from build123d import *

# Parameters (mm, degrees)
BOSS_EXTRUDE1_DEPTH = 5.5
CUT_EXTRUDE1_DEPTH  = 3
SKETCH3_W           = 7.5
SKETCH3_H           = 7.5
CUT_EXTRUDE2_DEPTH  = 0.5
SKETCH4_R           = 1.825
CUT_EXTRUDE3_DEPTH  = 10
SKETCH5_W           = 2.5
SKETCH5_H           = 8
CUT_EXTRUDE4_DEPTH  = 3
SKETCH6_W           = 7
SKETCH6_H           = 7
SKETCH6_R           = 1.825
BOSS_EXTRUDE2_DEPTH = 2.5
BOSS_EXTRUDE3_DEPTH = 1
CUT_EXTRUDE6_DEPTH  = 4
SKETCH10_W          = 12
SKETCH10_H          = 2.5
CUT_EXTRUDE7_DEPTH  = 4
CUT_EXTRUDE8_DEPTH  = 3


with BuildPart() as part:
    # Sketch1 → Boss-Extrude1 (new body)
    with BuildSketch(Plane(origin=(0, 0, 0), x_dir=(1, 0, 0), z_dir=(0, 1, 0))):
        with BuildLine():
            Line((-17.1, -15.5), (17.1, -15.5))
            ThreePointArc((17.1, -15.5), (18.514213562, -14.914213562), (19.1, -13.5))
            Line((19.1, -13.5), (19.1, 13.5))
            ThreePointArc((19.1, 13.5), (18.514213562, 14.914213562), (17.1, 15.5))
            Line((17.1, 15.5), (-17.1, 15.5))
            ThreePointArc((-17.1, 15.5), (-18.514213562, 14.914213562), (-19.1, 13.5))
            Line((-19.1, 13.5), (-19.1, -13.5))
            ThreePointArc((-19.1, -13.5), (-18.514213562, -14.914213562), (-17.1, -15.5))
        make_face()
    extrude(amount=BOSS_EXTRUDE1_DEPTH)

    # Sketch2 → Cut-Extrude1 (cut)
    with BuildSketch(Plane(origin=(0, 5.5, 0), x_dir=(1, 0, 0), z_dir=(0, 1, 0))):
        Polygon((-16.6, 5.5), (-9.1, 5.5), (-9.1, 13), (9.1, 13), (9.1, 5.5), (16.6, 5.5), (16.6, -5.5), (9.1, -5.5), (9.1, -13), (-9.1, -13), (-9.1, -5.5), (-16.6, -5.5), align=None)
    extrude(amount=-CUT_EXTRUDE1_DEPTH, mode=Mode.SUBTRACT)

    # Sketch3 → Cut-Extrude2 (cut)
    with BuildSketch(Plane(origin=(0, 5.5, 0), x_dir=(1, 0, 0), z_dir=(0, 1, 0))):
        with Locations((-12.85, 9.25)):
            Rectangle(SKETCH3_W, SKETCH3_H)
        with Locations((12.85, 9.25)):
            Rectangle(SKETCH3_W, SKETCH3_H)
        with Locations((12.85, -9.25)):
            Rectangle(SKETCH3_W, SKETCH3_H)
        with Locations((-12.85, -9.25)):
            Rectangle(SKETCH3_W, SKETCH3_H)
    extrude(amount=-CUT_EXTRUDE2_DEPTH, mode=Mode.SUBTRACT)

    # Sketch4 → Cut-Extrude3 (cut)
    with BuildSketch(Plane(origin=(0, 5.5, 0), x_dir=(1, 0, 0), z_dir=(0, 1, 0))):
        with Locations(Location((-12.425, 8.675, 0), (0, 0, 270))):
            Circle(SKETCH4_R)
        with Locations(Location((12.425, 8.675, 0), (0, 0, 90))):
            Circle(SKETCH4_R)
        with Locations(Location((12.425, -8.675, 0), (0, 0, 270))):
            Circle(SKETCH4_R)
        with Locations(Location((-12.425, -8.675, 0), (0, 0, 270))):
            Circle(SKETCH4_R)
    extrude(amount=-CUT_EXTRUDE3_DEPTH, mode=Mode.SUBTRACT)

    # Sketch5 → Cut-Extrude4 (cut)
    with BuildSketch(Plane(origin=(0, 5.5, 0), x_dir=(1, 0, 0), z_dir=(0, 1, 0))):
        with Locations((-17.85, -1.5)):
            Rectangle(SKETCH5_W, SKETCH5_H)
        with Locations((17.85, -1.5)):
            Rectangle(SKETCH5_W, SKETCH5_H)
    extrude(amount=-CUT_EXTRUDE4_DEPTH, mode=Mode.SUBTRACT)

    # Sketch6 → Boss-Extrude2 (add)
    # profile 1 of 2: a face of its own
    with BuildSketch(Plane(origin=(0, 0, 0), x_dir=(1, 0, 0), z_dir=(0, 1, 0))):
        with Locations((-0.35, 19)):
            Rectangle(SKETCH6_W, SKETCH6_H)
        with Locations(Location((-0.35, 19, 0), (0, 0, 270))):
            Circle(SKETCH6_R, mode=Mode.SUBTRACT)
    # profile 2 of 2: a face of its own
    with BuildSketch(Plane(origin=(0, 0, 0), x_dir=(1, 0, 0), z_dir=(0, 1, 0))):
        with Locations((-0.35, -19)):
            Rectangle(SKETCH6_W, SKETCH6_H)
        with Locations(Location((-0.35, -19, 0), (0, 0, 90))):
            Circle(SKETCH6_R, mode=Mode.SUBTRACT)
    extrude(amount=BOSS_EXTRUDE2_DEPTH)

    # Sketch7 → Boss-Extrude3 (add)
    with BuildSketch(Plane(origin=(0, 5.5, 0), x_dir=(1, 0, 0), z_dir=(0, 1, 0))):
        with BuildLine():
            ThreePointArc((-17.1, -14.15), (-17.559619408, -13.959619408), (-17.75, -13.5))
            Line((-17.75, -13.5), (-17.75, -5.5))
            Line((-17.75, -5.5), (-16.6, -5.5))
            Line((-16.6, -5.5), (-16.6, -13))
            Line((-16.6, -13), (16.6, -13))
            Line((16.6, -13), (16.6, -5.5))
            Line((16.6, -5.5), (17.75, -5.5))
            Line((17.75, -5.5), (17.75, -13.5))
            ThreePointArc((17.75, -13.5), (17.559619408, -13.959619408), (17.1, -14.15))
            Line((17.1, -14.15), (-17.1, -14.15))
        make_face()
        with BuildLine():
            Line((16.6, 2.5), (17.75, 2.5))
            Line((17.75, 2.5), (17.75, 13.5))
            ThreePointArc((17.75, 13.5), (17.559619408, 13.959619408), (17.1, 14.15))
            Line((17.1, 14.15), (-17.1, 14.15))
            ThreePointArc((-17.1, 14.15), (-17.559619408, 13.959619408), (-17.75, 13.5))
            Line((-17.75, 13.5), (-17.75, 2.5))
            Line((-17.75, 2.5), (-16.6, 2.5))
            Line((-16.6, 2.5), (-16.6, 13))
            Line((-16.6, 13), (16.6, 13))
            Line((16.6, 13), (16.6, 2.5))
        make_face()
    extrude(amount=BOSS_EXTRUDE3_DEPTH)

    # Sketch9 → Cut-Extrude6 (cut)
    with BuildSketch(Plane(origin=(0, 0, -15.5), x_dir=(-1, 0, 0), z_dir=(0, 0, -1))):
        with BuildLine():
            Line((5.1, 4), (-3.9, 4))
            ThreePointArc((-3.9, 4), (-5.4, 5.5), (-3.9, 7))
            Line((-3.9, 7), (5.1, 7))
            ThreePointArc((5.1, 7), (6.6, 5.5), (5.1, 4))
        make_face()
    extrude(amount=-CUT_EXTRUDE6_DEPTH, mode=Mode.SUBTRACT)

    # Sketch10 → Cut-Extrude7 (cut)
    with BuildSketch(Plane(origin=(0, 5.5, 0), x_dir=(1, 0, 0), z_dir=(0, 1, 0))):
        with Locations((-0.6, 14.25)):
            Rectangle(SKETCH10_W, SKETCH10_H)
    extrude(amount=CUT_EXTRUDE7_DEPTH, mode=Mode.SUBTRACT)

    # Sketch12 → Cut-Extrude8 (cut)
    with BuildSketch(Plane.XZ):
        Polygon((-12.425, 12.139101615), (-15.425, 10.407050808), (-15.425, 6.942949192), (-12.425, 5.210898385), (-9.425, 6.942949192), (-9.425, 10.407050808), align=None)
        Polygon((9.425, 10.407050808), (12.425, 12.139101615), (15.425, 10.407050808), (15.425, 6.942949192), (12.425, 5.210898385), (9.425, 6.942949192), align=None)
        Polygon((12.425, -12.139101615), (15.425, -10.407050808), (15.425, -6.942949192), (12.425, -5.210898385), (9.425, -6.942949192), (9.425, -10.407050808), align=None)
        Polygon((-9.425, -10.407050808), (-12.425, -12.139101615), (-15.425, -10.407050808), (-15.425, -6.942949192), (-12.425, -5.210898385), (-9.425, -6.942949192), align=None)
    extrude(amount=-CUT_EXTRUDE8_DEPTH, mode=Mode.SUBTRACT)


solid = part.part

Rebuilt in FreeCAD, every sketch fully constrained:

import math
import FreeCAD as App
import Part
import Sketcher

V = App.Vector
Q = App.Units.Quantity


def add_polygon(sketch, points):
    """Adds a closed chain of lines whose ends are joined by coincident constraints."""
    first, n = sketch.GeometryCount, len(points)
    for a, b in zip(points, points[1:] + points[:1]):
        sketch.addGeometry(Part.LineSegment(App.Vector(*a, 0), App.Vector(*b, 0)), False)
    for i in range(n):
        sketch.addConstraint(Sketcher.Constraint("Coincident", first + i, 2, first + (i + 1) % n, 1))

doc = App.newDocument("Part")
body = doc.addObject("PartDesign::Body", "Body")

sketch1 = body.newObject("Sketcher::SketchObject", "Sketch")
sketch1.AttachmentSupport = (doc.getObject("XZ_Plane"), [""])
sketch1.MapMode = "FlatFace"
sketch1.addGeometry([
    Part.LineSegment(V(-17.1, 15.5, 0), V(17.1, 15.5, 0)),
    Part.ArcOfCircle(Part.Circle(V(17.1, 13.5, 0), V(0, 0, 1), 2), math.radians(0), math.radians(90)),
    Part.LineSegment(V(19.1, 13.5, 0), V(19.1, -13.5, 0)),
    Part.ArcOfCircle(Part.Circle(V(17.1, -13.5, 0), V(0, 0, 1), 2), math.radians(-90), math.radians(0)),
    Part.LineSegment(V(17.1, -15.5, 0), V(-17.1, -15.5, 0)),
    Part.ArcOfCircle(Part.Circle(V(-17.1, -13.5, 0), V(0, 0, 1), 2), math.radians(-180), math.radians(-90)),
    Part.LineSegment(V(-19.1, -13.5, 0), V(-19.1, 13.5, 0)),
    Part.ArcOfCircle(Part.Circle(V(-17.1, 13.5, 0), V(0, 0, 1), 2), math.radians(90), math.radians(180)),
], False)
sketch1.addConstraint([
    Sketcher.Constraint("Tangent", 0, 2, 1, 2),
    Sketcher.Constraint("Tangent", 1, 1, 2, 1),
    Sketcher.Constraint("Tangent", 2, 2, 3, 2),
    Sketcher.Constraint("Tangent", 3, 1, 4, 1),
    Sketcher.Constraint("Tangent", 4, 2, 5, 2),
    Sketcher.Constraint("Tangent", 5, 1, 6, 1),
    Sketcher.Constraint("Tangent", 6, 2, 7, 2),
    Sketcher.Constraint("Tangent", 7, 1, 0, 1),
    Sketcher.Constraint("Horizontal", 0),
    Sketcher.Constraint("Vertical", 2),
    Sketcher.Constraint("Horizontal", 4),
    Sketcher.Constraint("Vertical", 6),
    Sketcher.Constraint("Equal", 1, 3),
    Sketcher.Constraint("Equal", 3, 5),
    Sketcher.Constraint("Equal", 5, 7),
    Sketcher.Constraint("Symmetric", 1, 3, 5, 3, -1, 1),
    Sketcher.Constraint("Radius", 1, Q("2 mm")),
    Sketcher.Constraint("DistanceY", 2, 2, 2, 1, Q("27 mm")),
    Sketcher.Constraint("DistanceX", 0, 1, 0, 2, Q("34.2 mm")),
])
pad1 = body.newObject("PartDesign::Pad", "Pad")
pad1.Profile = sketch1
pad1.Length = 5.5
pad1.Reversed = True

sketch2 = body.newObject("Sketcher::SketchObject", "Sketch001")
sketch2.AttachmentSupport = (doc.getObject("XZ_Plane"), [""])
sketch2.MapMode = "FlatFace"
sketch2.AttachmentOffset = App.Placement(V(0, 0, -5.5), App.Rotation())
add_polygon(sketch2, [(-9.1, -5.5), (-16.6, -5.5), (-16.6, 5.5), (-9.1, 5.5), (-9.1, 13), (9.1, 13), (9.1, 5.5), (16.6, 5.5), (16.6, -5.5), (9.1, -5.5), (9.1, -13), (-9.1, -13)])
sketch2.addConstraint([
    Sketcher.Constraint("Horizontal", 0),
    Sketcher.Constraint("Vertical", 1),
    Sketcher.Constraint("Horizontal", 2),
    Sketcher.Constraint("Vertical", 3),
    Sketcher.Constraint("Horizontal", 4),
    Sketcher.Constraint("Vertical", 5),
    Sketcher.Constraint("Horizontal", 6),
    Sketcher.Constraint("Vertical", 7),
    Sketcher.Constraint("Horizontal", 8),
    Sketcher.Constraint("Vertical", 9),
    Sketcher.Constraint("Horizontal", 10),
    Sketcher.Constraint("Vertical", 11),
    Sketcher.Constraint("Symmetric", 0, 2, 6, 2, -1, 1),
    Sketcher.Constraint("Symmetric", 2, 2, 8, 2, -1, 1),
    Sketcher.Constraint("Symmetric", 4, 2, 10, 2, -1, 1),
    Sketcher.Constraint("Symmetric", 2, 2, 5, 2, -2),
    Sketcher.Constraint("Equal", 8, 3),
    Sketcher.Constraint("DistanceY", 1, 1, 1, 2, Q("11 mm")),
    Sketcher.Constraint("DistanceX", 0, 2, 0, 1, Q("7.5 mm")),
    Sketcher.Constraint("DistanceX", 4, 1, 4, 2, Q("18.2 mm")),
])
pocket1 = body.newObject("PartDesign::Pocket", "Pocket")
pocket1.Profile = sketch2
pocket1.Length = 3
pocket1.Reversed = True

sketch3 = body.newObject("Sketcher::SketchObject", "Sketch002")
sketch3.AttachmentSupport = (doc.getObject("XZ_Plane"), [""])
sketch3.MapMode = "FlatFace"
sketch3.AttachmentOffset = App.Placement(V(0, 0, -5.5), App.Rotation())
add_polygon(sketch3, [(-16.6, -13), (-16.6, -5.5), (-9.1, -5.5), (-9.1, -13)])
add_polygon(sketch3, [(9.1, -13), (9.1, -5.5), (16.6, -5.5), (16.6, -13)])
add_polygon(sketch3, [(9.1, 5.5), (9.1, 13), (16.6, 13), (16.6, 5.5)])
add_polygon(sketch3, [(-16.6, 5.5), (-16.6, 13), (-9.1, 13), (-9.1, 5.5)])
sketch3.addConstraint([
    Sketcher.Constraint("Vertical", 0),
    Sketcher.Constraint("Horizontal", 1),
    Sketcher.Constraint("Vertical", 2),
    Sketcher.Constraint("Horizontal", 3),
    Sketcher.Constraint("Vertical", 4),
    Sketcher.Constraint("Horizontal", 5),
    Sketcher.Constraint("Vertical", 6),
    Sketcher.Constraint("Horizontal", 7),
    Sketcher.Constraint("Vertical", 8),
    Sketcher.Constraint("Horizontal", 9),
    Sketcher.Constraint("Vertical", 10),
    Sketcher.Constraint("Horizontal", 11),
    Sketcher.Constraint("Vertical", 12),
    Sketcher.Constraint("Horizontal", 13),
    Sketcher.Constraint("Vertical", 14),
    Sketcher.Constraint("Horizontal", 15),
    Sketcher.Constraint("Symmetric", 2, 2, 8, 2, -1, 1),
    Sketcher.Constraint("Symmetric", 0, 2, 10, 2, -1, 1),
    Sketcher.Constraint("Symmetric", 6, 2, 12, 2, -1, 1),
    Sketcher.Constraint("Symmetric", 4, 2, 14, 2, -1, 1),
    Sketcher.Constraint("Symmetric", 1, 2, 4, 2, -2),
    Sketcher.Constraint("Symmetric", 3, 2, 6, 2, -2),
    Sketcher.Constraint("Equal", 15, 0),
    Sketcher.Constraint("DistanceX", 1, 1, 1, 2, Q("7.5 mm")),
    Sketcher.Constraint("DistanceY", 2, 2, -1, 1, Q("13 mm")),
    Sketcher.Constraint("DistanceX", 0, 2, -1, 1, Q("16.6 mm")),
])
pocket2 = body.newObject("PartDesign::Pocket", "Pocket001")
pocket2.Profile = sketch3
pocket2.Length = 0.5
pocket2.Reversed = True

sketch4 = body.newObject("Sketcher::SketchObject", "Sketch003")
sketch4.AttachmentSupport = (doc.getObject("XZ_Plane"), [""])
sketch4.MapMode = "FlatFace"
sketch4.AttachmentOffset = App.Placement(V(0, 0, -5.5), App.Rotation())
sketch4.addGeometry([
    Part.Circle(V(-12.425, -8.675, 0), V(0, 0, 1), 1.825),
    Part.Circle(V(12.425, -8.675, 0), V(0, 0, 1), 1.825),
    Part.Circle(V(12.425, 8.675, 0), V(0, 0, 1), 1.825),
    Part.Circle(V(-12.425, 8.675, 0), V(0, 0, 1), 1.825),
], False)
sketch4.addConstraint([
    Sketcher.Constraint("Equal", 0, 1),
    Sketcher.Constraint("Equal", 1, 2),
    Sketcher.Constraint("Equal", 2, 3),
    Sketcher.Constraint("Symmetric", 0, 3, 2, 3, -1, 1),
    Sketcher.Constraint("Symmetric", 1, 3, 3, 3, -1, 1),
    Sketcher.Constraint("Symmetric", 0, 3, 1, 3, -2),
    Sketcher.Constraint("Diameter", 0, Q("3.65 mm")),
    Sketcher.Constraint("DistanceX", 0, 3, 1, 3, Q("24.85 mm")),
    Sketcher.Constraint("DistanceY", 1, 3, 2, 3, Q("17.35 mm")),
])
pocket3 = body.newObject("PartDesign::Pocket", "Pocket002")
pocket3.Profile = sketch4
pocket3.Length = 10
pocket3.Reversed = True

sketch5 = body.newObject("Sketcher::SketchObject", "Sketch004")
sketch5.AttachmentSupport = (doc.getObject("XZ_Plane"), [""])
sketch5.MapMode = "FlatFace"
sketch5.AttachmentOffset = App.Placement(V(0, 0, -5.5), App.Rotation())
add_polygon(sketch5, [(-19.1, -2.5), (-19.1, 5.5), (-16.6, 5.5), (-16.6, -2.5)])
add_polygon(sketch5, [(16.6, -2.5), (16.6, 5.5), (19.1, 5.5), (19.1, -2.5)])
sketch5.addConstraint([
    Sketcher.Constraint("Vertical", 0),
    Sketcher.Constraint("Horizontal", 1),
    Sketcher.Constraint("Vertical", 2),
    Sketcher.Constraint("Horizontal", 3),
    Sketcher.Constraint("Vertical", 4),
    Sketcher.Constraint("Horizontal", 5),
    Sketcher.Constraint("Vertical", 6),
    Sketcher.Constraint("Horizontal", 7),
    Sketcher.Constraint("Symmetric", 1, 2, 4, 2, -2),
    Sketcher.Constraint("Symmetric", 3, 2, 6, 2, -2),
    Sketcher.Constraint("DistanceY", 0, 1, 0, 2, Q("8 mm")),
    Sketcher.Constraint("DistanceX", 1, 1, 1, 2, Q("2.5 mm")),
    Sketcher.Constraint("DistanceX", 0, 2, -1, 1, Q("19.1 mm")),
    Sketcher.Constraint("DistanceY", -1, 1, 0, 2, Q("5.5 mm")),
])
pocket4 = body.newObject("PartDesign::Pocket", "Pocket003")
pocket4.Profile = sketch5
pocket4.Length = 3
pocket4.Reversed = True

sketch6 = body.newObject("Sketcher::SketchObject", "Sketch005")
sketch6.AttachmentSupport = (doc.getObject("XZ_Plane"), [""])
sketch6.MapMode = "FlatFace"
add_polygon(sketch6, [(-3.85, -22.5), (-3.85, -15.5), (3.15, -15.5), (3.15, -22.5)])
sketch6.addGeometry(Part.Circle(V(-0.35, -19, 0), V(0, 0, 1), 1.825), False)
add_polygon(sketch6, [(-3.85, 15.5), (-3.85, 22.5), (3.15, 22.5), (3.15, 15.5)])
sketch6.addGeometry(Part.Circle(V(-0.35, 19, 0), V(0, 0, 1), 1.825), False)
sketch6.addConstraint([
    Sketcher.Constraint("Vertical", 0),
    Sketcher.Constraint("Horizontal", 1),
    Sketcher.Constraint("Vertical", 2),
    Sketcher.Constraint("Horizontal", 3),
    Sketcher.Constraint("Vertical", 5),
    Sketcher.Constraint("Horizontal", 6),
    Sketcher.Constraint("Vertical", 7),
    Sketcher.Constraint("Horizontal", 8),
    Sketcher.Constraint("Equal", 4, 9),
    Sketcher.Constraint("Symmetric", 4, 3, 9, 3, -1),
    Sketcher.Constraint("Symmetric", 3, 2, 5, 2, -1),
    Sketcher.Constraint("Symmetric", 1, 2, 7, 2, -1),
    Sketcher.Constraint("Equal", 8, 0),
    Sketcher.Constraint("Diameter", 4, Q("3.65 mm")),
    Sketcher.Constraint("DistanceX", 1, 1, 1, 2, Q("7 mm")),
    Sketcher.Constraint("DistanceY", 4, 3, -1, 1, Q("19 mm")),
    Sketcher.Constraint("DistanceY", 0, 2, 5, 2, Q("38 mm")),
    Sketcher.Constraint("DistanceX", 0, 2, 4, 3, Q("3.5 mm")),
    Sketcher.Constraint("DistanceX", 4, 3, -1, 1, Q("0.35 mm")),
])
pad2 = body.newObject("PartDesign::Pad", "Pad001")
pad2.Profile = sketch6
pad2.Length = 2.5
pad2.Reversed = True

sketch7 = body.newObject("Sketcher::SketchObject", "Sketch006")
sketch7.AttachmentSupport = (doc.getObject("XZ_Plane"), [""])
sketch7.MapMode = "FlatFace"
sketch7.AttachmentOffset = App.Placement(V(0, 0, -5.5), App.Rotation())
sketch7.addGeometry([
    Part.ArcOfCircle(Part.Circle(V(-17.1, 13.5, 0), V(0, 0, 1), 0.65), math.radians(90), math.radians(180)),
    Part.LineSegment(V(-17.1, 14.15, 0), V(17.1, 14.15, 0)),
    Part.ArcOfCircle(Part.Circle(V(17.1, 13.5, 0), V(0, 0, 1), 0.65), math.radians(0), math.radians(90)),
    Part.LineSegment(V(17.75, 13.5, 0), V(17.75, 5.5, 0)),
    Part.LineSegment(V(17.75, 5.5, 0), V(16.6, 5.5, 0)),
    Part.LineSegment(V(16.6, 5.5, 0), V(16.6, 13, 0)),
    Part.LineSegment(V(16.6, 13, 0), V(-16.6, 13, 0)),
    Part.LineSegment(V(-16.6, 13, 0), V(-16.6, 5.5, 0)),
    Part.LineSegment(V(-16.6, 5.5, 0), V(-17.75, 5.5, 0)),
    Part.LineSegment(V(-17.75, 5.5, 0), V(-17.75, 13.5, 0)),
    Part.LineSegment(V(16.6, -2.5, 0), V(17.75, -2.5, 0)),
    Part.LineSegment(V(17.75, -2.5, 0), V(17.75, -13.5, 0)),
    Part.ArcOfCircle(Part.Circle(V(17.1, -13.5, 0), V(0, 0, 1), 0.65), math.radians(-90), math.radians(0)),
    Part.LineSegment(V(17.1, -14.15, 0), V(-17.1, -14.15, 0)),
    Part.ArcOfCircle(Part.Circle(V(-17.1, -13.5, 0), V(0, 0, 1), 0.65), math.radians(180), math.radians(270)),
    Part.LineSegment(V(-17.75, -13.5, 0), V(-17.75, -2.5, 0)),
    Part.LineSegment(V(-17.75, -2.5, 0), V(-16.6, -2.5, 0)),
    Part.LineSegment(V(-16.6, -2.5, 0), V(-16.6, -13, 0)),
    Part.LineSegment(V(-16.6, -13, 0), V(16.6, -13, 0)),
    Part.LineSegment(V(16.6, -13, 0), V(16.6, -2.5, 0)),
], False)
sketch7.addConstraint([
    Sketcher.Constraint("Tangent", 0, 1, 1, 1),
    Sketcher.Constraint("Tangent", 1, 2, 2, 2),
    Sketcher.Constraint("Tangent", 2, 1, 3, 1),
    Sketcher.Constraint("Coincident", 3, 2, 4, 1),
    Sketcher.Constraint("Coincident", 4, 2, 5, 1),
    Sketcher.Constraint("Coincident", 5, 2, 6, 1),
    Sketcher.Constraint("Coincident", 6, 2, 7, 1),
    Sketcher.Constraint("Coincident", 7, 2, 8, 1),
    Sketcher.Constraint("Coincident", 8, 2, 9, 1),
    Sketcher.Constraint("Tangent", 9, 2, 0, 2),
    Sketcher.Constraint("Coincident", 10, 2, 11, 1),
    Sketcher.Constraint("Tangent", 11, 2, 12, 2),
    Sketcher.Constraint("Tangent", 12, 1, 13, 1),
    Sketcher.Constraint("Tangent", 13, 2, 14, 2),
    Sketcher.Constraint("Tangent", 14, 1, 15, 1),
    Sketcher.Constraint("Coincident", 15, 2, 16, 1),
    Sketcher.Constraint("Coincident", 16, 2, 17, 1),
    Sketcher.Constraint("Coincident", 17, 2, 18, 1),
    Sketcher.Constraint("Coincident", 18, 2, 19, 1),
    Sketcher.Constraint("Coincident", 19, 2, 10, 1),
    Sketcher.Constraint("Horizontal", 1),
    Sketcher.Constraint("Vertical", 3),
    Sketcher.Constraint("Horizontal", 4),
    Sketcher.Constraint("Vertical", 5),
    Sketcher.Constraint("Horizontal", 6),
    Sketcher.Constraint("Vertical", 7),
    Sketcher.Constraint("Horizontal", 8),
    Sketcher.Constraint("Vertical", 9),
    Sketcher.Constraint("Horizontal", 10),
    Sketcher.Constraint("Vertical", 11),
    Sketcher.Constraint("Horizontal", 13),
    Sketcher.Constraint("Vertical", 15),
    Sketcher.Constraint("Horizontal", 16),
    Sketcher.Constraint("Vertical", 17),
    Sketcher.Constraint("Horizontal", 18),
    Sketcher.Constraint("Vertical", 19),
    Sketcher.Constraint("Equal", 0, 2),
    Sketcher.Constraint("Equal", 2, 12),
    Sketcher.Constraint("Equal", 12, 14),
    Sketcher.Constraint("Symmetric", 0, 3, 12, 3, -1, 1),
    Sketcher.Constraint("Symmetric", 5, 2, 17, 2, -1, 1),
    Sketcher.Constraint("Symmetric", 4, 2, 7, 2, -2),
    Sketcher.Constraint("Symmetric", 10, 2, 15, 2, -2),
    Sketcher.Constraint("Vertical", 2, 3, 12, 3),
    Sketcher.Constraint("Vertical", 5, 2, 18, 2),
    Sketcher.Constraint("DistanceY", 3, 2, 3, 1, Q("8 mm")),
    Sketcher.Constraint("DistanceY", 11, 2, 11, 1, Q("11 mm")),
    Sketcher.Constraint("Radius", 0, Q("0.65 mm")),
    Sketcher.Constraint("DistanceX", 1, 1, 1, 2, Q("34.2 mm")),
    Sketcher.Constraint("DistanceX", 6, 2, 6, 1, Q("33.2 mm")),
    Sketcher.Constraint("DistanceY", 5, 1, 5, 2, Q("7.5 mm")),
    Sketcher.Constraint("DistanceY", -1, 1, 5, 2, Q("13 mm")),
])
pad3 = body.newObject("PartDesign::Pad", "Pad002")
pad3.Profile = sketch7
pad3.Length = 1
pad3.Reversed = True

sketch8 = body.newObject("Sketcher::SketchObject", "Sketch007")
sketch8.AttachmentSupport = (doc.getObject("XY_Plane"), [""])
sketch8.MapMode = "FlatFace"
sketch8.AttachmentOffset = App.Placement(V(0, 0, -15.5), App.Rotation())
sketch8.addGeometry([
    Part.LineSegment(V(3.9, 4, 0), V(-5.1, 4, 0)),
    Part.ArcOfCircle(Part.Circle(V(-5.1, 5.5, 0), V(0, 0, 1), 1.5), math.radians(90), math.radians(270)),
    Part.LineSegment(V(-5.1, 7, 0), V(3.9, 7, 0)),
    Part.ArcOfCircle(Part.Circle(V(3.9, 5.5, 0), V(0, 0, 1), 1.5), math.radians(-90), math.radians(90)),
], False)
sketch8.addConstraint([
    Sketcher.Constraint("Tangent", 0, 2, 1, 2),
    Sketcher.Constraint("Tangent", 1, 1, 2, 1),
    Sketcher.Constraint("Tangent", 2, 2, 3, 2),
    Sketcher.Constraint("Tangent", 3, 1, 0, 1),
    Sketcher.Constraint("Horizontal", 0),
    Sketcher.Constraint("Horizontal", 2),
    Sketcher.Constraint("Radius", 1, Q("1.5 mm")),
    Sketcher.Constraint("DistanceX", 0, 2, 0, 1, Q("9 mm")),
    Sketcher.Constraint("DistanceY", -1, 1, 0, 2, Q("4 mm")),
    Sketcher.Constraint("DistanceX", 1, 3, -1, 1, Q("5.1 mm")),
])
pocket5 = body.newObject("PartDesign::Pocket", "Pocket004")
pocket5.Profile = sketch8
pocket5.Length = 4
pocket5.Reversed = True

sketch9 = body.newObject("Sketcher::SketchObject", "Sketch008")
sketch9.AttachmentSupport = (doc.getObject("XZ_Plane"), [""])
sketch9.MapMode = "FlatFace"
sketch9.AttachmentOffset = App.Placement(V(0, 0, -5.5), App.Rotation())
add_polygon(sketch9, [(-6.6, -15.5), (-6.6, -13), (5.4, -13), (5.4, -15.5)])
sketch9.addConstraint([
    Sketcher.Constraint("Vertical", 0),
    Sketcher.Constraint("Horizontal", 1),
    Sketcher.Constraint("Vertical", 2),
    Sketcher.Constraint("Horizontal", 3),
    Sketcher.Constraint("DistanceX", 1, 1, 1, 2, Q("12 mm")),
    Sketcher.Constraint("DistanceY", 0, 1, 0, 2, Q("2.5 mm")),
    Sketcher.Constraint("DistanceY", 0, 2, -1, 1, Q("13 mm")),
    Sketcher.Constraint("DistanceX", 0, 2, -1, 1, Q("6.6 mm")),
])
pocket6 = body.newObject("PartDesign::Pocket", "Pocket005")
pocket6.Profile = sketch9
pocket6.Length = 4

sketch10 = body.newObject("Sketcher::SketchObject", "Sketch009")
sketch10.AttachmentSupport = (doc.getObject("XZ_Plane"), [""])
sketch10.MapMode = "FlatFace"
add_polygon(sketch10, [(-12.425, 12.139102), (-15.425, 10.407051), (-15.425, 6.942949), (-12.425, 5.210898), (-9.425, 6.942949), (-9.425, 10.407051)])
add_polygon(sketch10, [(12.425, 12.139102), (9.425, 10.407051), (9.425, 6.942949), (12.425, 5.210898), (15.425, 6.942949), (15.425, 10.407051)])
add_polygon(sketch10, [(12.425, -12.139102), (15.425, -10.407051), (15.425, -6.942949), (12.425, -5.210898), (9.425, -6.942949), (9.425, -10.407051)])
add_polygon(sketch10, [(-12.425, -12.139102), (-9.425, -10.407051), (-9.425, -6.942949), (-12.425, -5.210898), (-15.425, -6.942949), (-15.425, -10.407051)])
sketch10.addConstraint([
    Sketcher.Constraint("Vertical", 1),
    Sketcher.Constraint("Vertical", 4),
    Sketcher.Constraint("Vertical", 7),
    Sketcher.Constraint("Vertical", 10),
    Sketcher.Constraint("Vertical", 13),
    Sketcher.Constraint("Vertical", 16),
    Sketcher.Constraint("Vertical", 19),
    Sketcher.Constraint("Vertical", 22),
    Sketcher.Constraint("Symmetric", 0, 2, 12, 2, -1, 1),
    Sketcher.Constraint("Symmetric", 2, 2, 14, 2, -1, 1),
    Sketcher.Constraint("Symmetric", 3, 2, 15, 2, -1, 1),
    Sketcher.Constraint("Symmetric", 5, 2, 17, 2, -1, 1),
    Sketcher.Constraint("Symmetric", 6, 2, 18, 2, -1, 1),
    Sketcher.Constraint("Symmetric", 8, 2, 20, 2, -1, 1),
    Sketcher.Constraint("Symmetric", 9, 2, 21, 2, -1, 1),
    Sketcher.Constraint("Symmetric", 11, 2, 23, 2, -1, 1),
    Sketcher.Constraint("Symmetric", 4, 2, 6, 2, -2),
    Sketcher.Constraint("Symmetric", 2, 2, 8, 2, -2),
    Sketcher.Constraint("Symmetric", 1, 2, 9, 2, -2),
    Sketcher.Constraint("Symmetric", 5, 2, 11, 2, -2),
    Sketcher.Constraint("Parallel", 0, 3),
    Sketcher.Constraint("Parallel", 2, 5),
    Sketcher.Constraint("Parallel", 3, 6),
    Sketcher.Constraint("Parallel", 5, 8),
    Sketcher.Constraint("Parallel", 8, 11),
    Sketcher.Constraint("Parallel", 11, 14),
    Sketcher.Constraint("Parallel", 14, 17),
    Sketcher.Constraint("Parallel", 17, 20),
    Sketcher.Constraint("Parallel", 20, 23),
    Sketcher.Constraint("Horizontal", 1, 2, 3, 2),
    Sketcher.Constraint("Horizontal", 0, 2, 4, 2),
    Sketcher.Constraint("Angle", 0, Q("-150 deg")),
    Sketcher.Constraint("DistanceX", 1, 2, 2, 2, Q("3 mm")),
    Sketcher.Constraint("DistanceX", 4, 2, 6, 2, Q("18.85 mm")),
    Sketcher.Constraint("DistanceY", 12, 2, 9, 2, Q("17.35 mm")),
    Sketcher.Constraint("DistanceY", 1, 2, 1, 1, Q("3.464102 mm")),
])
pocket7 = body.newObject("PartDesign::Pocket", "Pocket006")
pocket7.Profile = sketch10
pocket7.Length = 3

doc.recompute()
